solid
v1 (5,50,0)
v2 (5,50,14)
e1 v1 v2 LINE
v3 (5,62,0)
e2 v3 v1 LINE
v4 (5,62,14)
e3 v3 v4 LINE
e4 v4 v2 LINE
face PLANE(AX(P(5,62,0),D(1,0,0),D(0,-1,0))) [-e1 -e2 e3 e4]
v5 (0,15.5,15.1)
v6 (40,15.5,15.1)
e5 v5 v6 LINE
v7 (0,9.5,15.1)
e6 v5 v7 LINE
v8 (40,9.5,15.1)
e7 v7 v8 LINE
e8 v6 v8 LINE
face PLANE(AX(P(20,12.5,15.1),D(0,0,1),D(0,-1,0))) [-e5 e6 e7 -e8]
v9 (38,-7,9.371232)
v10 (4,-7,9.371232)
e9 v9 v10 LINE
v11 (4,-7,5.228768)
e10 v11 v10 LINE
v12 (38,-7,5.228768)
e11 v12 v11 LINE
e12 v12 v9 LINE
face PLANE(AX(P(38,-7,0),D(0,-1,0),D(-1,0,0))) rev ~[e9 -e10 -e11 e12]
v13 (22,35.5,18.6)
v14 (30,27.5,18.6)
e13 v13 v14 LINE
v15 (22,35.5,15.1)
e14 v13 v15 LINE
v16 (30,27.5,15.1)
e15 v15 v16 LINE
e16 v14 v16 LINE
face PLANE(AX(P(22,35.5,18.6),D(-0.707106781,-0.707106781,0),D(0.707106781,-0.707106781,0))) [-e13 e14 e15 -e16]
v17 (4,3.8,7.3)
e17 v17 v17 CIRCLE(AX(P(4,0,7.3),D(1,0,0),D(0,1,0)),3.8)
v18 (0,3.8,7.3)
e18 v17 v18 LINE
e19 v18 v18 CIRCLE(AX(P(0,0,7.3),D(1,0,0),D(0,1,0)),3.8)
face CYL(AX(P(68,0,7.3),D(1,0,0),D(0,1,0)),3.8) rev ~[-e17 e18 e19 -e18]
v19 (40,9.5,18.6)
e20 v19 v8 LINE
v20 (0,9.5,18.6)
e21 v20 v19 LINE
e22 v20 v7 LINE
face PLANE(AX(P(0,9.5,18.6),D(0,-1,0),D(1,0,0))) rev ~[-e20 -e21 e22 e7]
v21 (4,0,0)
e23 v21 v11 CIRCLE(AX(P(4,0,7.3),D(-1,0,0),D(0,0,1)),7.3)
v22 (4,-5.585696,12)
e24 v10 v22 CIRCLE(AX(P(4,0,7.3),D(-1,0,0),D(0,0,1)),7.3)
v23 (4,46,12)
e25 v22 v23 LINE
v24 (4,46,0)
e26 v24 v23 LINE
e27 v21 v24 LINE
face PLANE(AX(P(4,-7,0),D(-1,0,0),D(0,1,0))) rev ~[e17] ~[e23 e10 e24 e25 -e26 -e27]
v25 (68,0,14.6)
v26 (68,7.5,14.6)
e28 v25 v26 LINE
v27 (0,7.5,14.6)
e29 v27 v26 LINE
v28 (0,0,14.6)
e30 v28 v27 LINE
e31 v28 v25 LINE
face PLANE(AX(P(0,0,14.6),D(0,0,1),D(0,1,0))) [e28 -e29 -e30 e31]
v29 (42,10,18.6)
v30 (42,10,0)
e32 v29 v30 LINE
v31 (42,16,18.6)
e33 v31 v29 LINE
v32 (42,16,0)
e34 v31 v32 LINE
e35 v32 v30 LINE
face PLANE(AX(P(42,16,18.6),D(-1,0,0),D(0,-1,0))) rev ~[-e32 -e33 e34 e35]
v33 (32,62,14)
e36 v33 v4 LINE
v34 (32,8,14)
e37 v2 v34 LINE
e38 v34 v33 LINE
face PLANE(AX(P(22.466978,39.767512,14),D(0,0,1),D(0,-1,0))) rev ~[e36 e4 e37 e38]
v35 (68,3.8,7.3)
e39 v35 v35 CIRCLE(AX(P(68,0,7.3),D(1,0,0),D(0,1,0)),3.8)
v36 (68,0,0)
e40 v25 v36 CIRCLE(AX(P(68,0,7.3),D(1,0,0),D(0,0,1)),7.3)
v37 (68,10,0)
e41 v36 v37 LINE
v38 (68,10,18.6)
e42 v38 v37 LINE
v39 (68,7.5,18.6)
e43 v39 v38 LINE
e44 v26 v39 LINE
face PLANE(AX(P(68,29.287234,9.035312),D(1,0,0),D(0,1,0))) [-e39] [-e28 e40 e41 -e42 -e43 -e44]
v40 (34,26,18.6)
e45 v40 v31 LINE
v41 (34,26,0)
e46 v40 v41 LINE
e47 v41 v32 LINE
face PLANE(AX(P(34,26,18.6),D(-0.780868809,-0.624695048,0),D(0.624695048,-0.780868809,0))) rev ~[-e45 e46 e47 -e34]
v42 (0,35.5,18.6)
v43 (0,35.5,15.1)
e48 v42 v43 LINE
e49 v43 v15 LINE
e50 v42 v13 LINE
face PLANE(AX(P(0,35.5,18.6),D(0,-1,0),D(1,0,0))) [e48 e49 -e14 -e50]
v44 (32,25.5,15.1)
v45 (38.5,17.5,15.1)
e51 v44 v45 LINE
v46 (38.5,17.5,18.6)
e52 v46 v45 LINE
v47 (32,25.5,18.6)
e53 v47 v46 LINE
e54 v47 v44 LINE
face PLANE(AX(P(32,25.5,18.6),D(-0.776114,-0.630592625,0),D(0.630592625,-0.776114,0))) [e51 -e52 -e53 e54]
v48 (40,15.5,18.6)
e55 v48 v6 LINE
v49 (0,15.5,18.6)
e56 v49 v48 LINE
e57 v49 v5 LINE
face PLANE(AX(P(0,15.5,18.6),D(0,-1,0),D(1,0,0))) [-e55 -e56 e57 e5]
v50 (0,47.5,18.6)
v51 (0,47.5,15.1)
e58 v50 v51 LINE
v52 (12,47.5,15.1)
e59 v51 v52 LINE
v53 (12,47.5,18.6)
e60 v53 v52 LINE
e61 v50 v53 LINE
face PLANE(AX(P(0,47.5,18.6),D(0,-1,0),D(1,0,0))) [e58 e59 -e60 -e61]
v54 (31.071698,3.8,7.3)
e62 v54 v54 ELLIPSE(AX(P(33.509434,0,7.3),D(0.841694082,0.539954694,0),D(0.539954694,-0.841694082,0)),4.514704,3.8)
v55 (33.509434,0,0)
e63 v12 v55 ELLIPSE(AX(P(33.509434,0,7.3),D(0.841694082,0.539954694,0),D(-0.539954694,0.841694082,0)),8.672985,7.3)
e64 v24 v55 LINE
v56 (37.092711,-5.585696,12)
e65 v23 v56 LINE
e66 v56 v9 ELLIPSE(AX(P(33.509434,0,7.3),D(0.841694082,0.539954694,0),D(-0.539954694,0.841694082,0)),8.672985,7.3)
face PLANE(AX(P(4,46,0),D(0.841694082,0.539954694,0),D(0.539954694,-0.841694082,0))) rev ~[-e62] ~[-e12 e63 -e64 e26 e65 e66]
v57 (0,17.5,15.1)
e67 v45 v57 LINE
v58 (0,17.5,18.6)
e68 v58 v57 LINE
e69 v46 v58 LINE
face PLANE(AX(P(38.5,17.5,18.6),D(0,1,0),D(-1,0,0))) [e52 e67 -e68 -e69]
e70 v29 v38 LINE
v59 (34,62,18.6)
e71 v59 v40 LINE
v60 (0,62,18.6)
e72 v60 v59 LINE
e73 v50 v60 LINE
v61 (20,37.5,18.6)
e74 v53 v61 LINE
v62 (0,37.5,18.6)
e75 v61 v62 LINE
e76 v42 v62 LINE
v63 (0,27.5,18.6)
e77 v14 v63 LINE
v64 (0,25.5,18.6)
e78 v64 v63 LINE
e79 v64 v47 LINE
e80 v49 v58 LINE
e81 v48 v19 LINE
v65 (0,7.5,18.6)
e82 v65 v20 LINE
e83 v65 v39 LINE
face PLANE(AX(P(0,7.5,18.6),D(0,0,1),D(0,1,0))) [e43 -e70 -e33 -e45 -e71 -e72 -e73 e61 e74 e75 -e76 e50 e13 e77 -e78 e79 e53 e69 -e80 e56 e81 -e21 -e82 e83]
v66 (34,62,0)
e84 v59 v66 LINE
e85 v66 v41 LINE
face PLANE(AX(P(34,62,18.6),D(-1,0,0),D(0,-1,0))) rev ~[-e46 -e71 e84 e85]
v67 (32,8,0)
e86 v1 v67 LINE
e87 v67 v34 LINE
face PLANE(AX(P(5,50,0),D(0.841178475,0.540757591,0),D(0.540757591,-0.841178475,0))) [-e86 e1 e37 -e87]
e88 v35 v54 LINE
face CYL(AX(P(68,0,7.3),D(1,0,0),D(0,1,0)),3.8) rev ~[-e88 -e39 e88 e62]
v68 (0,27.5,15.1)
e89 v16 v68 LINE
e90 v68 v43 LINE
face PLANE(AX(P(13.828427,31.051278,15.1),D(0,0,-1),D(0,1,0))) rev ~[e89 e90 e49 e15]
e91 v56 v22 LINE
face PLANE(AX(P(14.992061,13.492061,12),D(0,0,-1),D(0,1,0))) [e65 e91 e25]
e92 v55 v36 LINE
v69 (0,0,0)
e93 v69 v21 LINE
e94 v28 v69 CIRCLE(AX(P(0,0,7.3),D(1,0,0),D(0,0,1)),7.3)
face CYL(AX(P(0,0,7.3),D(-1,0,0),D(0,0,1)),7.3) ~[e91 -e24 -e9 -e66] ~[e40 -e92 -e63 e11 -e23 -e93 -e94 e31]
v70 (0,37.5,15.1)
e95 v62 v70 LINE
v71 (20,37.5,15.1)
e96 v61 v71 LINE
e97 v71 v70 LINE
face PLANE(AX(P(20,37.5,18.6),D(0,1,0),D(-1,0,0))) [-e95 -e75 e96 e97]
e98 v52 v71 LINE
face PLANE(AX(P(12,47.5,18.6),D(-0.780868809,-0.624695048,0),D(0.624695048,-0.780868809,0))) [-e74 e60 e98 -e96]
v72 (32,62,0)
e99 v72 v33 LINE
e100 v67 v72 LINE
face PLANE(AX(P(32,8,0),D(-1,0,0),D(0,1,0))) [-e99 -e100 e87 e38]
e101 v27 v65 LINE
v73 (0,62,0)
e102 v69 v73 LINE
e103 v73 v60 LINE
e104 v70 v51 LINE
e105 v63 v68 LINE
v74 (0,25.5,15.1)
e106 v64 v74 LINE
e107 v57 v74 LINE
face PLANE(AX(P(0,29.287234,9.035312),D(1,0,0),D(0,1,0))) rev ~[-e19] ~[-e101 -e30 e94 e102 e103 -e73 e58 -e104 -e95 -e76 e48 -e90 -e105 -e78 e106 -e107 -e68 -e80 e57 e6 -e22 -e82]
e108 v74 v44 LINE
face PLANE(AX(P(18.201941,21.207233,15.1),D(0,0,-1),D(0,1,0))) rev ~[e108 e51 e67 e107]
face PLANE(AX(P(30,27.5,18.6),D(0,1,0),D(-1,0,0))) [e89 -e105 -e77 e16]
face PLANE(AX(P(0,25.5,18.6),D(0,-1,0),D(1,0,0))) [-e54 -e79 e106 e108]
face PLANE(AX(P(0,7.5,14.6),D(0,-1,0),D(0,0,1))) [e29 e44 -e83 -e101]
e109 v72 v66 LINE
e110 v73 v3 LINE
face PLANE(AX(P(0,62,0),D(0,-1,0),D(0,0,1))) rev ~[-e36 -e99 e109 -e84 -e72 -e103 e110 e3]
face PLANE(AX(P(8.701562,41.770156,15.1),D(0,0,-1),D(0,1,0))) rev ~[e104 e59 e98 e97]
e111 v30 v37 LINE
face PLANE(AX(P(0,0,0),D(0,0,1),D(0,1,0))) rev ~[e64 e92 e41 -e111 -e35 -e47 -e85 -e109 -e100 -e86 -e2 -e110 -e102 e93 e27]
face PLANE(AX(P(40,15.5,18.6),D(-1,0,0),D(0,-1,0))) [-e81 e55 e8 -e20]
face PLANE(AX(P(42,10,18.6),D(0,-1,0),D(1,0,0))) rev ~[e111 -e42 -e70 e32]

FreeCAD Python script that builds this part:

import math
import FreeCAD as App
import Part
import Sketcher
Q = App.Units.Quantity


def add_polygon(sketch, points):
    """Adds a closed chain of lines whose ends are joined by coincident constraints."""
    first, n = sketch.GeometryCount, len(points)
    for a, b in zip(points, points[1:] + points[:1]):
        sketch.addGeometry(Part.LineSegment(App.Vector(*a, 0), App.Vector(*b, 0)), False)
    for i in range(n):
        sketch.addConstraint(Sketcher.Constraint("Coincident", first + i, 2, first + (i + 1) % n, 1))

doc = App.newDocument("Part")
body = doc.addObject("PartDesign::Body", "Body")

sketch1 = body.newObject("Sketcher::SketchObject", "Sketch")
sketch1.AttachmentSupport = (doc.getObject("YZ_Plane"), [""])
sketch1.MapMode = "FlatFace"
sketch1.addGeometry([
    Part.ArcOfCircle(Part.Circle(App.Vector(0, 7.3, 0), App.Vector(0, 0, 1), 7.3), math.radians(90), math.radians(270)),
    Part.LineSegment(App.Vector(0, 0, 0), App.Vector(62, 0, 0)),
    Part.LineSegment(App.Vector(62, 0, 0), App.Vector(62, 18.6, 0)),
    Part.LineSegment(App.Vector(62, 18.6, 0), App.Vector(7.5, 18.6, 0)),
    Part.LineSegment(App.Vector(7.5, 18.6, 0), App.Vector(7.5, 14.6, 0)),
    Part.LineSegment(App.Vector(7.5, 14.6, 0), App.Vector(0, 14.6, 0)),
], False)
sketch1.addConstraint([
    Sketcher.Constraint("Tangent", 0, 2, 1, 1),
    Sketcher.Constraint("Coincident", 1, 2, 2, 1),
    Sketcher.Constraint("Coincident", 2, 2, 3, 1),
    Sketcher.Constraint("Coincident", 3, 2, 4, 1),
    Sketcher.Constraint("Coincident", 4, 2, 5, 1),
    Sketcher.Constraint("Tangent", 5, 2, 0, 1),
    Sketcher.Constraint("Horizontal", 1),
    Sketcher.Constraint("Vertical", 2),
    Sketcher.Constraint("Horizontal", 3),
    Sketcher.Constraint("Vertical", 4),
    Sketcher.Constraint("Horizontal", 5),
    Sketcher.Constraint("Coincident", 0, 2, -1, 1),
    Sketcher.Constraint("Radius", 0, Q("7.3 mm")),
    Sketcher.Constraint("DistanceX", 1, 1, 1, 2, Q("62 mm")),
    Sketcher.Constraint("DistanceY", 4, 2, 4, 1, Q("4 mm")),
    Sketcher.Constraint("DistanceX", 3, 2, 3, 1, Q("54.5 mm")),
])
pad1 = body.newObject("PartDesign::Pad", "Pad")
pad1.Profile = sketch1
pad1.Length = 68

sketch2 = body.newObject("Sketcher::SketchObject", "Sketch001")
sketch2.AttachmentSupport = (doc.getObject("YZ_Plane"), [""])
sketch2.MapMode = "FlatFace"
sketch2.AttachmentOffset = App.Placement(App.Vector(0, 0, 68), App.Rotation())
sketch2.addGeometry(Part.Circle(App.Vector(0, 7.3, 0), App.Vector(0, 0, 1), 3.8), False)
sketch2.addConstraint([
    Sketcher.Constraint("PointOnObject", 0, 3, -2),
    Sketcher.Constraint("Diameter", 0, Q("7.6 mm")),
    Sketcher.Constraint("DistanceY", -1, 1, 0, 3, Q("7.3 mm")),
])
pocket1 = body.newObject("PartDesign::Pocket", "Pocket")
pocket1.Profile = sketch2
pocket1.Type = "ThroughAll"

sketch3 = body.newObject("Sketcher::SketchObject", "Sketch002")
sketch3.AttachmentSupport = (doc.getObject("XY_Plane"), [""])
sketch3.MapMode = "FlatFace"
sketch3.AttachmentOffset = App.Placement(App.Vector(0, 0, 18.6), App.Rotation())
add_polygon(sketch3, [(34, 62), (34, 26), (42, 16), (42, 10), (68, 10), (68, 62)])
sketch3.addConstraint([
    Sketcher.Constraint("Vertical", 0),
    Sketcher.Constraint("Vertical", 2),
    Sketcher.Constraint("Horizontal", 3),
    Sketcher.Constraint("Vertical", 4),
    Sketcher.Constraint("Horizontal", 5),
    Sketcher.Constraint("DistanceX", 3, 1, 3, 2, Q("26 mm")),
    Sketcher.Constraint("DistanceX", 5, 2, 5, 1, Q("34 mm")),
    Sketcher.Constraint("DistanceY", 0, 2, 0, 1, Q("36 mm")),
    Sketcher.Constraint("DistanceY", 2, 2, 2, 1, Q("6 mm")),
    Sketcher.Constraint("DistanceY", 4, 1, 4, 2, Q("52 mm")),
    Sketcher.Constraint("DistanceX", -1, 1, 0, 2, Q("34 mm")),
    Sketcher.Constraint("DistanceY", -1, 1, 0, 2, Q("26 mm")),
])
pocket2 = body.newObject("PartDesign::Pocket", "Pocket001")
pocket2.Profile = sketch3
pocket2.Type = "ThroughAll"

sketch4 = body.newObject("Sketcher::SketchObject", "Sketch003")
sketch4.AttachmentSupport = (doc.getObject("XY_Plane"), [""])
sketch4.MapMode = "FlatFace"
sketch4.AttachmentOffset = App.Placement(App.Vector(0, 0, 18.6), App.Rotation())
add_polygon(sketch4, [(40, 15.5), (0, 15.5), (0, 9.5), (40, 9.5)])
add_polygon(sketch4, [(32, 25.5), (0, 25.5), (0, 17.5), (38.5, 17.5)])
add_polygon(sketch4, [(22, 35.5), (0, 35.5), (0, 27.5), (30, 27.5)])
add_polygon(sketch4, [(12, 47.5), (0, 47.5), (0, 37.5), (20, 37.5)])
sketch4.addConstraint([
    Sketcher.Constraint("Horizontal", 0),
    Sketcher.Constraint("Vertical", 1),
    Sketcher.Constraint("Horizontal", 2),
    Sketcher.Constraint("Vertical", 3),
    Sketcher.Constraint("Horizontal", 4),
    Sketcher.Constraint("Vertical", 5),
    Sketcher.Constraint("Horizontal", 6),
    Sketcher.Constraint("Horizontal", 8),
    Sketcher.Constraint("Vertical", 9),
    Sketcher.Constraint("Horizontal", 10),
    Sketcher.Constraint("Horizontal", 12),
    Sketcher.Constraint("Vertical", 13),
    Sketcher.Constraint("Horizontal", 14),
    Sketcher.Constraint("PointOnObject", 0, 2, -2),
    Sketcher.Constraint("PointOnObject", 4, 2, -2),
    Sketcher.Constraint("PointOnObject", 8, 2, -2),
    Sketcher.Constraint("PointOnObject", 12, 2, -2),
    Sketcher.Constraint("Equal", 5, 9),
    Sketcher.Constraint("DistanceX", 0, 2, 0, 1, Q("40 mm")),
    Sketcher.Constraint("DistanceX", 4, 2, 4, 1, Q("32 mm")),
    Sketcher.Constraint("DistanceX", 8, 2, 8, 1, Q("22 mm")),
    Sketcher.Constraint("DistanceX", 10, 1, 10, 2, Q("30 mm")),
    Sketcher.Constraint("DistanceX", 12, 2, 12, 1, Q("12 mm")),
    Sketcher.Constraint("DistanceX", 14, 1, 14, 2, Q("20 mm")),
    Sketcher.Constraint("DistanceY", 1, 2, 1, 1, Q("6 mm")),
    Sketcher.Constraint("DistanceY", 5, 2, 5, 1, Q("8 mm")),
    Sketcher.Constraint("DistanceY", 13, 2, 13, 1, Q("10 mm")),
    Sketcher.Constraint("DistanceX", 6, 1, 6, 2, Q("38.5 mm")),
    Sketcher.Constraint("DistanceY", 0, 2, 4, 2, Q("10 mm")),
    Sketcher.Constraint("DistanceY", 4, 2, 8, 2, Q("10 mm")),
    Sketcher.Constraint("DistanceY", 8, 2, 12, 2, Q("12 mm")),
    Sketcher.Constraint("DistanceY", -1, 1, 0, 2, Q("15.5 mm")),
])
pocket3 = body.newObject("PartDesign::Pocket", "Pocket002")
pocket3.Profile = sketch4
pocket3.Length = 3.5

sketch5 = body.newObject("Sketcher::SketchObject", "Sketch004")
sketch5.AttachmentSupport = (doc.getObject("XY_Plane"), [""])
sketch5.MapMode = "FlatFace"
add_polygon(sketch5, [(38, -7), (4, -7), (4, 46)])
sketch5.addConstraint([
    Sketcher.Constraint("Horizontal", 0),
    Sketcher.Constraint("Vertical", 1),
    Sketcher.Constraint("DistanceX", 0, 2, 0, 1, Q("34 mm")),
    Sketcher.Constraint("DistanceY", 1, 1, 1, 2, Q("53 mm")),
    Sketcher.Constraint("DistanceX", -1, 1, 0, 2, Q("4 mm")),
    Sketcher.Constraint("DistanceY", 0, 2, -1, 1, Q("7 mm")),
])
pocket4 = body.newObject("PartDesign::Pocket", "Pocket003")
pocket4.Profile = sketch5
pocket4.Length = 12
pocket4.Reversed = True

sketch6 = body.newObject("Sketcher::SketchObject", "Sketch005")
sketch6.AttachmentSupport = (doc.getObject("XY_Plane"), [""])
sketch6.MapMode = "FlatFace"
add_polygon(sketch6, [(32, 62), (32, 8), (5, 50), (5, 62)])
sketch6.addConstraint([
    Sketcher.Constraint("Vertical", 0),
    Sketcher.Constraint("Vertical", 2),
    Sketcher.Constraint("Horizontal", 3),
    Sketcher.Constraint("DistanceX", 3, 1, 3, 2, Q("27 mm")),
    Sketcher.Constraint("DistanceY", 0, 2, 0, 1, Q("54 mm")),
    Sketcher.Constraint("DistanceY", 2, 1, 2, 2, Q("12 mm")),
    Sketcher.Constraint("DistanceX", -1, 1, 0, 2, Q("32 mm")),
    Sketcher.Constraint("DistanceY", -1, 1, 0, 2, Q("8 mm")),
])
pocket5 = body.newObject("PartDesign::Pocket", "Pocket004")
pocket5.Profile = sketch6
pocket5.Length = 14
pocket5.Reversed = True

doc.recompute()
